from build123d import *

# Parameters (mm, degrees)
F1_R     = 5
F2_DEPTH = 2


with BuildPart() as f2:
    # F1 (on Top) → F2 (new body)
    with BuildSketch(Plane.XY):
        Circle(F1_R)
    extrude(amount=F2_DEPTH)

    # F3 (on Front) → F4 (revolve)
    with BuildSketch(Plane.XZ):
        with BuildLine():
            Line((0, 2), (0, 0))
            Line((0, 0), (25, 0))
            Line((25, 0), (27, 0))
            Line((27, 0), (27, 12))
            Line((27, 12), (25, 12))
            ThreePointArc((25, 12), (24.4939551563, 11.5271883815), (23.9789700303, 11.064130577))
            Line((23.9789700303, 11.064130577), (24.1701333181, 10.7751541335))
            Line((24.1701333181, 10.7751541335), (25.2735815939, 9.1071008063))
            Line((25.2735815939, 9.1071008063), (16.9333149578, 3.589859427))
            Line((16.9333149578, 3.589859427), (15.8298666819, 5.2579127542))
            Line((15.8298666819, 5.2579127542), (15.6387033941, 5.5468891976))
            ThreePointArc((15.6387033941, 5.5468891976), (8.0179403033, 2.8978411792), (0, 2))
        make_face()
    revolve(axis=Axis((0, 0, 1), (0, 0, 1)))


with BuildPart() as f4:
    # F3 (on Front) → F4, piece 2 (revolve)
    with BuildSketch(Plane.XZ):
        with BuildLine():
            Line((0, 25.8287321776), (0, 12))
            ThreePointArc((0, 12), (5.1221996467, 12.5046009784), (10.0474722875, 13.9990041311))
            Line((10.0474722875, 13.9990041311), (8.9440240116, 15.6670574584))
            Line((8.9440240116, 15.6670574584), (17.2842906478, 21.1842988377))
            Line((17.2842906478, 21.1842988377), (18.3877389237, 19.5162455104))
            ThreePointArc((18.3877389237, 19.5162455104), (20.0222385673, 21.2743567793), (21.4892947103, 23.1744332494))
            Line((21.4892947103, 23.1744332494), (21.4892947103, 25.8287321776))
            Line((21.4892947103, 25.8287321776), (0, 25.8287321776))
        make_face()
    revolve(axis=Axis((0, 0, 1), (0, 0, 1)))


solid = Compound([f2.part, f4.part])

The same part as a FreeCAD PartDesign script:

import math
import FreeCAD as App
import Part
import Sketcher

V = App.Vector
Q = App.Units.Quantity

doc = App.newDocument("Part")
params = doc.addObject("Spreadsheet::Sheet", "Params")
for row, (alias, value) in enumerate([
    ("sketch1_diameter", "10 mm"),
    ("pad1_length", "2 mm"),
    ("sketch2_width", "27 mm"),
    ("sketch2_width2", "2 mm"),
    ("sketch2_height", "12 mm"),
    ("sketch2_length", "2 mm"),
    ("sketch2_length2", "10 mm"),
    ("revolution_angle", "360 deg"),
    ("sketch3_radius", "26.25 mm"),
    ("sketch3_length", "2 mm"),
    ("sketch3_length2", "10 mm"),
    ("revolution2_angle", "360 deg"),
], start=1):
    params.set(f"A{row}", alias)
    params.set(f"B{row}", "=" + value)
    params.setAlias(f"B{row}", alias)

body = doc.addObject("PartDesign::Body", "Body")

# Sketch on XY plane
sketch1 = body.newObject("Sketcher::SketchObject", "Sketch")
sketch1.AttachmentSupport = (doc.getObject("XY_Plane"), [""])
sketch1.MapMode = "FlatFace"
sketch1.addGeometry(Part.Circle(V(0, 0, 0), V(0, 0, 1), 5), False)
sketch1.addConstraint(Sketcher.Constraint("Coincident", 0, 3, -1, 1))
sketch1.addConstraint(Sketcher.Constraint("Diameter", 0, Q("10 mm")))
sketch1.setExpression("Constraints[1]", "Params.sketch1_diameter")
pad1 = body.newObject("PartDesign::Pad", "Pad")
pad1.Profile = sketch1
pad1.setExpression("Length", "Params.pad1_length")

# Sketch on XZ plane
sketch2 = body.newObject("Sketcher::SketchObject", "Sketch001")
sketch2.AttachmentSupport = (doc.getObject("XZ_Plane"), [""])
sketch2.MapMode = "FlatFace"
sketch2.addGeometry(Part.LineSegment(V(0, 2, 0), V(0, 0, 0)), False)
sketch2.addGeometry(Part.LineSegment(V(0, 0, 0), V(27, 0, 0)), False)
sketch2.addGeometry(Part.LineSegment(V(27, 0, 0), V(27, 12, 0)), False)
sketch2.addGeometry(Part.LineSegment(V(27, 12, 0), V(25, 12, 0)), False)
sketch2.addGeometry(Part.ArcOfCircle(Part.Circle(V(0, 38.25, 0), V(0, 0, 1), 36.25), math.radians(-48.59), math.radians(-46.4)), False)
sketch2.addGeometry(Part.LineSegment(V(23.98, 11.06, 0), V(24.17, 10.78, 0)), False)
sketch2.addGeometry(Part.LineSegment(V(24.17, 10.78, 0), V(25.27, 9.11, 0)), False)
sketch2.addGeometry(Part.LineSegment(V(25.27, 9.11, 0), V(16.93, 3.59, 0)), False)
sketch2.addGeometry(Part.LineSegment(V(16.93, 3.59, 0), V(15.83, 5.26, 0)), False)
sketch2.addGeometry(Part.LineSegment(V(15.83, 5.26, 0), V(15.64, 5.55, 0)), False)
sketch2.addGeometry(Part.ArcOfCircle(Part.Circle(V(0, 38.25, 0), V(0, 0, 1), 36.25), math.radians(-90), math.radians(-64)), False)
sketch2.addConstraint(Sketcher.Constraint("Coincident", 0, 2, 1, 1))
sketch2.addConstraint(Sketcher.Constraint("Coincident", 1, 2, 2, 1))
sketch2.addConstraint(Sketcher.Constraint("Coincident", 2, 2, 3, 1))
sketch2.addConstraint(Sketcher.Constraint("Coincident", 3, 2, 4, 2))
sketch2.addConstraint(Sketcher.Constraint("Coincident", 4, 1, 5, 1))
sketch2.addConstraint(Sketcher.Constraint("Coincident", 5, 2, 6, 1))
sketch2.addConstraint(Sketcher.Constraint("Coincident", 6, 2, 7, 1))
sketch2.addConstraint(Sketcher.Constraint("Coincident", 7, 2, 8, 1))
sketch2.addConstraint(Sketcher.Constraint("Coincident", 8, 2, 9, 1))
sketch2.addConstraint(Sketcher.Constraint("Coincident", 9, 2, 10, 2))
sketch2.addConstraint(Sketcher.Constraint("Coincident", 10, 1, 0, 1))
sketch2.addConstraint(Sketcher.Constraint("Vertical", 0))
sketch2.addConstraint(Sketcher.Constraint("Horizontal", 1))
sketch2.addConstraint(Sketcher.Constraint("Vertical", 2))
sketch2.addConstraint(Sketcher.Constraint("Horizontal", 3))
sketch2.addConstraint(Sketcher.Constraint("Coincident", 0, 2, -1, 1))
sketch2.addConstraint(Sketcher.Constraint("Coincident", 10, 3, 4, 3))
sketch2.addConstraint(Sketcher.Constraint("Equal", 4, 10))
sketch2.addConstraint(Sketcher.Constraint("PointOnObject", 4, 3, -2))
sketch2.addConstraint(Sketcher.Constraint("Parallel", 5, 6))
sketch2.addConstraint(Sketcher.Constraint("Perpendicular", 6, 7))
sketch2.addConstraint(Sketcher.Constraint("Perpendicular", 7, 8))
sketch2.addConstraint(Sketcher.Constraint("Parallel", 8, 9))
sketch2.addConstraint(Sketcher.Constraint("Equal", 3, 0))
sketch2.addConstraint(Sketcher.Constraint("Equal", 6, 8))
sketch2.addConstraint(Sketcher.Constraint("Equal", 5, 9))
sketch2.addConstraint(Sketcher.Constraint("DistanceX", 1, 1, 1, 2, Q("27 mm")))
sketch2.addConstraint(Sketcher.Constraint("DistanceX", 3, 2, 3, 1, Q("2 mm")))
sketch2.addConstraint(Sketcher.Constraint("DistanceY", 2, 1, 2, 2, Q("12 mm")))
sketch2.addConstraint(Sketcher.Constraint("Distance", 6, Q("2 mm")))
sketch2.addConstraint(Sketcher.Constraint("Distance", 7, Q("10 mm")))
sketch2.addConstraint(Sketcher.Constraint("DistanceY", -1, 1, 6, 2, Q("9.107101 mm")))
sketch2.addConstraint(Sketcher.Constraint("DistanceX", -1, 1, 4, 1, Q("23.97897 mm")))
sketch2.setExpression("Constraints[26]", "Params.sketch2_width")
sketch2.setExpression("Constraints[27]", "Params.sketch2_width2")
sketch2.setExpression("Constraints[28]", "Params.sketch2_height")
sketch2.setExpression("Constraints[29]", "Params.sketch2_length")
sketch2.setExpression("Constraints[30]", "Params.sketch2_length2")
revolution = body.newObject("PartDesign::Revolution", "Revolution")
revolution.Profile = sketch2
revolution.ReferenceAxis = (sketch2, ["V_Axis"])
revolution.setExpression("Angle", "Params.revolution_angle")
body2 = doc.addObject("PartDesign::Body", "Body001")

# Sketch on XZ plane
sketch3 = body2.newObject("Sketcher::SketchObject", "Sketch002")
sketch3.AttachmentSupport = (doc.getObject("XZ_Plane001"), [""])
sketch3.MapMode = "FlatFace"
sketch3.addGeometry(Part.LineSegment(V(0, 25.8, 0), V(0, 12, 0)), False)
sketch3.addGeometry(Part.ArcOfCircle(Part.Circle(V(0, 38.2, 0), V(0, 0, 1), 26.2), math.radians(-90), math.radians(-67)), False)
sketch3.addGeometry(Part.LineSegment(V(10, 14, 0), V(8.9, 15.7, 0)), False)
sketch3.addGeometry(Part.LineSegment(V(8.9, 15.7, 0), V(17.3, 21.2, 0)), False)
sketch3.addGeometry(Part.LineSegment(V(17.3, 21.2, 0), V(18.4, 19.5, 0)), False)
sketch3.addGeometry(Part.ArcOfCircle(Part.Circle(V(0, 38.2, 0), V(0, 0, 1), 26.2), math.radians(-45.53), math.radians(-35.05)), False)
sketch3.addGeometry(Part.LineSegment(V(21.5, 23.2, 0), V(21.5, 25.8, 0)), False)
sketch3.addGeometry(Part.LineSegment(V(21.5, 25.8, 0), V(0, 25.8, 0)), False)
sketch3.addConstraint(Sketcher.Constraint("Coincident", 0, 2, 1, 1))
sketch3.addConstraint(Sketcher.Constraint("Coincident", 1, 2, 2, 1))
sketch3.addConstraint(Sketcher.Constraint("Coincident", 2, 2, 3, 1))
sketch3.addConstraint(Sketcher.Constraint("Coincident", 3, 2, 4, 1))
sketch3.addConstraint(Sketcher.Constraint("Coincident", 4, 2, 5, 1))
sketch3.addConstraint(Sketcher.Constraint("Coincident", 5, 2, 6, 1))
sketch3.addConstraint(Sketcher.Constraint("Coincident", 6, 2, 7, 1))
sketch3.addConstraint(Sketcher.Constraint("Coincident", 7, 2, 0, 1))
sketch3.addConstraint(Sketcher.Constraint("Vertical", 0))
sketch3.addConstraint(Sketcher.Constraint("Vertical", 6))
sketch3.addConstraint(Sketcher.Constraint("Horizontal", 7))
sketch3.addConstraint(Sketcher.Constraint("Coincident", 5, 3, 1, 3))
sketch3.addConstraint(Sketcher.Constraint("Equal", 1, 5))
sketch3.addConstraint(Sketcher.Constraint("PointOnObject", 1, 3, -2))
sketch3.addConstraint(Sketcher.Constraint("PointOnObject", 0, 2, -2))
sketch3.addConstraint(Sketcher.Constraint("Perpendicular", 2, 3))
sketch3.addConstraint(Sketcher.Constraint("Perpendicular", 3, 4))
sketch3.addConstraint(Sketcher.Constraint("Equal", 2, 4))
sketch3.addConstraint(Sketcher.Constraint("Radius", 1, Q("26.25 mm")))
sketch3.addConstraint(Sketcher.Constraint("Distance", 2, Q("2 mm")))
sketch3.addConstraint(Sketcher.Constraint("Distance", 3, Q("10 mm")))
sketch3.addConstraint(Sketcher.Constraint("DistanceY", -1, 1, 0, 2, Q("12 mm")))
sketch3.addConstraint(Sketcher.Constraint("DistanceY", 6, 1, 6, 2, Q("2.654299 mm")))
sketch3.addConstraint(Sketcher.Constraint("DistanceY", -1, 1, 3, 2, Q("21.184299 mm")))
sketch3.addConstraint(Sketcher.Constraint("DistanceX", 7, 2, 7, 1, Q("21.489295 mm")))
sketch3.setExpression("Constraints[18]", "Params.sketch3_radius")
sketch3.setExpression("Constraints[19]", "Params.sketch3_length")
sketch3.setExpression("Constraints[20]", "Params.sketch3_length2")
revolution2 = body2.newObject("PartDesign::Revolution", "Revolution001")
revolution2.Profile = sketch3
revolution2.ReferenceAxis = (sketch3, ["V_Axis"])
revolution2.setExpression("Angle", "Params.revolution2_angle")

doc.recompute()
